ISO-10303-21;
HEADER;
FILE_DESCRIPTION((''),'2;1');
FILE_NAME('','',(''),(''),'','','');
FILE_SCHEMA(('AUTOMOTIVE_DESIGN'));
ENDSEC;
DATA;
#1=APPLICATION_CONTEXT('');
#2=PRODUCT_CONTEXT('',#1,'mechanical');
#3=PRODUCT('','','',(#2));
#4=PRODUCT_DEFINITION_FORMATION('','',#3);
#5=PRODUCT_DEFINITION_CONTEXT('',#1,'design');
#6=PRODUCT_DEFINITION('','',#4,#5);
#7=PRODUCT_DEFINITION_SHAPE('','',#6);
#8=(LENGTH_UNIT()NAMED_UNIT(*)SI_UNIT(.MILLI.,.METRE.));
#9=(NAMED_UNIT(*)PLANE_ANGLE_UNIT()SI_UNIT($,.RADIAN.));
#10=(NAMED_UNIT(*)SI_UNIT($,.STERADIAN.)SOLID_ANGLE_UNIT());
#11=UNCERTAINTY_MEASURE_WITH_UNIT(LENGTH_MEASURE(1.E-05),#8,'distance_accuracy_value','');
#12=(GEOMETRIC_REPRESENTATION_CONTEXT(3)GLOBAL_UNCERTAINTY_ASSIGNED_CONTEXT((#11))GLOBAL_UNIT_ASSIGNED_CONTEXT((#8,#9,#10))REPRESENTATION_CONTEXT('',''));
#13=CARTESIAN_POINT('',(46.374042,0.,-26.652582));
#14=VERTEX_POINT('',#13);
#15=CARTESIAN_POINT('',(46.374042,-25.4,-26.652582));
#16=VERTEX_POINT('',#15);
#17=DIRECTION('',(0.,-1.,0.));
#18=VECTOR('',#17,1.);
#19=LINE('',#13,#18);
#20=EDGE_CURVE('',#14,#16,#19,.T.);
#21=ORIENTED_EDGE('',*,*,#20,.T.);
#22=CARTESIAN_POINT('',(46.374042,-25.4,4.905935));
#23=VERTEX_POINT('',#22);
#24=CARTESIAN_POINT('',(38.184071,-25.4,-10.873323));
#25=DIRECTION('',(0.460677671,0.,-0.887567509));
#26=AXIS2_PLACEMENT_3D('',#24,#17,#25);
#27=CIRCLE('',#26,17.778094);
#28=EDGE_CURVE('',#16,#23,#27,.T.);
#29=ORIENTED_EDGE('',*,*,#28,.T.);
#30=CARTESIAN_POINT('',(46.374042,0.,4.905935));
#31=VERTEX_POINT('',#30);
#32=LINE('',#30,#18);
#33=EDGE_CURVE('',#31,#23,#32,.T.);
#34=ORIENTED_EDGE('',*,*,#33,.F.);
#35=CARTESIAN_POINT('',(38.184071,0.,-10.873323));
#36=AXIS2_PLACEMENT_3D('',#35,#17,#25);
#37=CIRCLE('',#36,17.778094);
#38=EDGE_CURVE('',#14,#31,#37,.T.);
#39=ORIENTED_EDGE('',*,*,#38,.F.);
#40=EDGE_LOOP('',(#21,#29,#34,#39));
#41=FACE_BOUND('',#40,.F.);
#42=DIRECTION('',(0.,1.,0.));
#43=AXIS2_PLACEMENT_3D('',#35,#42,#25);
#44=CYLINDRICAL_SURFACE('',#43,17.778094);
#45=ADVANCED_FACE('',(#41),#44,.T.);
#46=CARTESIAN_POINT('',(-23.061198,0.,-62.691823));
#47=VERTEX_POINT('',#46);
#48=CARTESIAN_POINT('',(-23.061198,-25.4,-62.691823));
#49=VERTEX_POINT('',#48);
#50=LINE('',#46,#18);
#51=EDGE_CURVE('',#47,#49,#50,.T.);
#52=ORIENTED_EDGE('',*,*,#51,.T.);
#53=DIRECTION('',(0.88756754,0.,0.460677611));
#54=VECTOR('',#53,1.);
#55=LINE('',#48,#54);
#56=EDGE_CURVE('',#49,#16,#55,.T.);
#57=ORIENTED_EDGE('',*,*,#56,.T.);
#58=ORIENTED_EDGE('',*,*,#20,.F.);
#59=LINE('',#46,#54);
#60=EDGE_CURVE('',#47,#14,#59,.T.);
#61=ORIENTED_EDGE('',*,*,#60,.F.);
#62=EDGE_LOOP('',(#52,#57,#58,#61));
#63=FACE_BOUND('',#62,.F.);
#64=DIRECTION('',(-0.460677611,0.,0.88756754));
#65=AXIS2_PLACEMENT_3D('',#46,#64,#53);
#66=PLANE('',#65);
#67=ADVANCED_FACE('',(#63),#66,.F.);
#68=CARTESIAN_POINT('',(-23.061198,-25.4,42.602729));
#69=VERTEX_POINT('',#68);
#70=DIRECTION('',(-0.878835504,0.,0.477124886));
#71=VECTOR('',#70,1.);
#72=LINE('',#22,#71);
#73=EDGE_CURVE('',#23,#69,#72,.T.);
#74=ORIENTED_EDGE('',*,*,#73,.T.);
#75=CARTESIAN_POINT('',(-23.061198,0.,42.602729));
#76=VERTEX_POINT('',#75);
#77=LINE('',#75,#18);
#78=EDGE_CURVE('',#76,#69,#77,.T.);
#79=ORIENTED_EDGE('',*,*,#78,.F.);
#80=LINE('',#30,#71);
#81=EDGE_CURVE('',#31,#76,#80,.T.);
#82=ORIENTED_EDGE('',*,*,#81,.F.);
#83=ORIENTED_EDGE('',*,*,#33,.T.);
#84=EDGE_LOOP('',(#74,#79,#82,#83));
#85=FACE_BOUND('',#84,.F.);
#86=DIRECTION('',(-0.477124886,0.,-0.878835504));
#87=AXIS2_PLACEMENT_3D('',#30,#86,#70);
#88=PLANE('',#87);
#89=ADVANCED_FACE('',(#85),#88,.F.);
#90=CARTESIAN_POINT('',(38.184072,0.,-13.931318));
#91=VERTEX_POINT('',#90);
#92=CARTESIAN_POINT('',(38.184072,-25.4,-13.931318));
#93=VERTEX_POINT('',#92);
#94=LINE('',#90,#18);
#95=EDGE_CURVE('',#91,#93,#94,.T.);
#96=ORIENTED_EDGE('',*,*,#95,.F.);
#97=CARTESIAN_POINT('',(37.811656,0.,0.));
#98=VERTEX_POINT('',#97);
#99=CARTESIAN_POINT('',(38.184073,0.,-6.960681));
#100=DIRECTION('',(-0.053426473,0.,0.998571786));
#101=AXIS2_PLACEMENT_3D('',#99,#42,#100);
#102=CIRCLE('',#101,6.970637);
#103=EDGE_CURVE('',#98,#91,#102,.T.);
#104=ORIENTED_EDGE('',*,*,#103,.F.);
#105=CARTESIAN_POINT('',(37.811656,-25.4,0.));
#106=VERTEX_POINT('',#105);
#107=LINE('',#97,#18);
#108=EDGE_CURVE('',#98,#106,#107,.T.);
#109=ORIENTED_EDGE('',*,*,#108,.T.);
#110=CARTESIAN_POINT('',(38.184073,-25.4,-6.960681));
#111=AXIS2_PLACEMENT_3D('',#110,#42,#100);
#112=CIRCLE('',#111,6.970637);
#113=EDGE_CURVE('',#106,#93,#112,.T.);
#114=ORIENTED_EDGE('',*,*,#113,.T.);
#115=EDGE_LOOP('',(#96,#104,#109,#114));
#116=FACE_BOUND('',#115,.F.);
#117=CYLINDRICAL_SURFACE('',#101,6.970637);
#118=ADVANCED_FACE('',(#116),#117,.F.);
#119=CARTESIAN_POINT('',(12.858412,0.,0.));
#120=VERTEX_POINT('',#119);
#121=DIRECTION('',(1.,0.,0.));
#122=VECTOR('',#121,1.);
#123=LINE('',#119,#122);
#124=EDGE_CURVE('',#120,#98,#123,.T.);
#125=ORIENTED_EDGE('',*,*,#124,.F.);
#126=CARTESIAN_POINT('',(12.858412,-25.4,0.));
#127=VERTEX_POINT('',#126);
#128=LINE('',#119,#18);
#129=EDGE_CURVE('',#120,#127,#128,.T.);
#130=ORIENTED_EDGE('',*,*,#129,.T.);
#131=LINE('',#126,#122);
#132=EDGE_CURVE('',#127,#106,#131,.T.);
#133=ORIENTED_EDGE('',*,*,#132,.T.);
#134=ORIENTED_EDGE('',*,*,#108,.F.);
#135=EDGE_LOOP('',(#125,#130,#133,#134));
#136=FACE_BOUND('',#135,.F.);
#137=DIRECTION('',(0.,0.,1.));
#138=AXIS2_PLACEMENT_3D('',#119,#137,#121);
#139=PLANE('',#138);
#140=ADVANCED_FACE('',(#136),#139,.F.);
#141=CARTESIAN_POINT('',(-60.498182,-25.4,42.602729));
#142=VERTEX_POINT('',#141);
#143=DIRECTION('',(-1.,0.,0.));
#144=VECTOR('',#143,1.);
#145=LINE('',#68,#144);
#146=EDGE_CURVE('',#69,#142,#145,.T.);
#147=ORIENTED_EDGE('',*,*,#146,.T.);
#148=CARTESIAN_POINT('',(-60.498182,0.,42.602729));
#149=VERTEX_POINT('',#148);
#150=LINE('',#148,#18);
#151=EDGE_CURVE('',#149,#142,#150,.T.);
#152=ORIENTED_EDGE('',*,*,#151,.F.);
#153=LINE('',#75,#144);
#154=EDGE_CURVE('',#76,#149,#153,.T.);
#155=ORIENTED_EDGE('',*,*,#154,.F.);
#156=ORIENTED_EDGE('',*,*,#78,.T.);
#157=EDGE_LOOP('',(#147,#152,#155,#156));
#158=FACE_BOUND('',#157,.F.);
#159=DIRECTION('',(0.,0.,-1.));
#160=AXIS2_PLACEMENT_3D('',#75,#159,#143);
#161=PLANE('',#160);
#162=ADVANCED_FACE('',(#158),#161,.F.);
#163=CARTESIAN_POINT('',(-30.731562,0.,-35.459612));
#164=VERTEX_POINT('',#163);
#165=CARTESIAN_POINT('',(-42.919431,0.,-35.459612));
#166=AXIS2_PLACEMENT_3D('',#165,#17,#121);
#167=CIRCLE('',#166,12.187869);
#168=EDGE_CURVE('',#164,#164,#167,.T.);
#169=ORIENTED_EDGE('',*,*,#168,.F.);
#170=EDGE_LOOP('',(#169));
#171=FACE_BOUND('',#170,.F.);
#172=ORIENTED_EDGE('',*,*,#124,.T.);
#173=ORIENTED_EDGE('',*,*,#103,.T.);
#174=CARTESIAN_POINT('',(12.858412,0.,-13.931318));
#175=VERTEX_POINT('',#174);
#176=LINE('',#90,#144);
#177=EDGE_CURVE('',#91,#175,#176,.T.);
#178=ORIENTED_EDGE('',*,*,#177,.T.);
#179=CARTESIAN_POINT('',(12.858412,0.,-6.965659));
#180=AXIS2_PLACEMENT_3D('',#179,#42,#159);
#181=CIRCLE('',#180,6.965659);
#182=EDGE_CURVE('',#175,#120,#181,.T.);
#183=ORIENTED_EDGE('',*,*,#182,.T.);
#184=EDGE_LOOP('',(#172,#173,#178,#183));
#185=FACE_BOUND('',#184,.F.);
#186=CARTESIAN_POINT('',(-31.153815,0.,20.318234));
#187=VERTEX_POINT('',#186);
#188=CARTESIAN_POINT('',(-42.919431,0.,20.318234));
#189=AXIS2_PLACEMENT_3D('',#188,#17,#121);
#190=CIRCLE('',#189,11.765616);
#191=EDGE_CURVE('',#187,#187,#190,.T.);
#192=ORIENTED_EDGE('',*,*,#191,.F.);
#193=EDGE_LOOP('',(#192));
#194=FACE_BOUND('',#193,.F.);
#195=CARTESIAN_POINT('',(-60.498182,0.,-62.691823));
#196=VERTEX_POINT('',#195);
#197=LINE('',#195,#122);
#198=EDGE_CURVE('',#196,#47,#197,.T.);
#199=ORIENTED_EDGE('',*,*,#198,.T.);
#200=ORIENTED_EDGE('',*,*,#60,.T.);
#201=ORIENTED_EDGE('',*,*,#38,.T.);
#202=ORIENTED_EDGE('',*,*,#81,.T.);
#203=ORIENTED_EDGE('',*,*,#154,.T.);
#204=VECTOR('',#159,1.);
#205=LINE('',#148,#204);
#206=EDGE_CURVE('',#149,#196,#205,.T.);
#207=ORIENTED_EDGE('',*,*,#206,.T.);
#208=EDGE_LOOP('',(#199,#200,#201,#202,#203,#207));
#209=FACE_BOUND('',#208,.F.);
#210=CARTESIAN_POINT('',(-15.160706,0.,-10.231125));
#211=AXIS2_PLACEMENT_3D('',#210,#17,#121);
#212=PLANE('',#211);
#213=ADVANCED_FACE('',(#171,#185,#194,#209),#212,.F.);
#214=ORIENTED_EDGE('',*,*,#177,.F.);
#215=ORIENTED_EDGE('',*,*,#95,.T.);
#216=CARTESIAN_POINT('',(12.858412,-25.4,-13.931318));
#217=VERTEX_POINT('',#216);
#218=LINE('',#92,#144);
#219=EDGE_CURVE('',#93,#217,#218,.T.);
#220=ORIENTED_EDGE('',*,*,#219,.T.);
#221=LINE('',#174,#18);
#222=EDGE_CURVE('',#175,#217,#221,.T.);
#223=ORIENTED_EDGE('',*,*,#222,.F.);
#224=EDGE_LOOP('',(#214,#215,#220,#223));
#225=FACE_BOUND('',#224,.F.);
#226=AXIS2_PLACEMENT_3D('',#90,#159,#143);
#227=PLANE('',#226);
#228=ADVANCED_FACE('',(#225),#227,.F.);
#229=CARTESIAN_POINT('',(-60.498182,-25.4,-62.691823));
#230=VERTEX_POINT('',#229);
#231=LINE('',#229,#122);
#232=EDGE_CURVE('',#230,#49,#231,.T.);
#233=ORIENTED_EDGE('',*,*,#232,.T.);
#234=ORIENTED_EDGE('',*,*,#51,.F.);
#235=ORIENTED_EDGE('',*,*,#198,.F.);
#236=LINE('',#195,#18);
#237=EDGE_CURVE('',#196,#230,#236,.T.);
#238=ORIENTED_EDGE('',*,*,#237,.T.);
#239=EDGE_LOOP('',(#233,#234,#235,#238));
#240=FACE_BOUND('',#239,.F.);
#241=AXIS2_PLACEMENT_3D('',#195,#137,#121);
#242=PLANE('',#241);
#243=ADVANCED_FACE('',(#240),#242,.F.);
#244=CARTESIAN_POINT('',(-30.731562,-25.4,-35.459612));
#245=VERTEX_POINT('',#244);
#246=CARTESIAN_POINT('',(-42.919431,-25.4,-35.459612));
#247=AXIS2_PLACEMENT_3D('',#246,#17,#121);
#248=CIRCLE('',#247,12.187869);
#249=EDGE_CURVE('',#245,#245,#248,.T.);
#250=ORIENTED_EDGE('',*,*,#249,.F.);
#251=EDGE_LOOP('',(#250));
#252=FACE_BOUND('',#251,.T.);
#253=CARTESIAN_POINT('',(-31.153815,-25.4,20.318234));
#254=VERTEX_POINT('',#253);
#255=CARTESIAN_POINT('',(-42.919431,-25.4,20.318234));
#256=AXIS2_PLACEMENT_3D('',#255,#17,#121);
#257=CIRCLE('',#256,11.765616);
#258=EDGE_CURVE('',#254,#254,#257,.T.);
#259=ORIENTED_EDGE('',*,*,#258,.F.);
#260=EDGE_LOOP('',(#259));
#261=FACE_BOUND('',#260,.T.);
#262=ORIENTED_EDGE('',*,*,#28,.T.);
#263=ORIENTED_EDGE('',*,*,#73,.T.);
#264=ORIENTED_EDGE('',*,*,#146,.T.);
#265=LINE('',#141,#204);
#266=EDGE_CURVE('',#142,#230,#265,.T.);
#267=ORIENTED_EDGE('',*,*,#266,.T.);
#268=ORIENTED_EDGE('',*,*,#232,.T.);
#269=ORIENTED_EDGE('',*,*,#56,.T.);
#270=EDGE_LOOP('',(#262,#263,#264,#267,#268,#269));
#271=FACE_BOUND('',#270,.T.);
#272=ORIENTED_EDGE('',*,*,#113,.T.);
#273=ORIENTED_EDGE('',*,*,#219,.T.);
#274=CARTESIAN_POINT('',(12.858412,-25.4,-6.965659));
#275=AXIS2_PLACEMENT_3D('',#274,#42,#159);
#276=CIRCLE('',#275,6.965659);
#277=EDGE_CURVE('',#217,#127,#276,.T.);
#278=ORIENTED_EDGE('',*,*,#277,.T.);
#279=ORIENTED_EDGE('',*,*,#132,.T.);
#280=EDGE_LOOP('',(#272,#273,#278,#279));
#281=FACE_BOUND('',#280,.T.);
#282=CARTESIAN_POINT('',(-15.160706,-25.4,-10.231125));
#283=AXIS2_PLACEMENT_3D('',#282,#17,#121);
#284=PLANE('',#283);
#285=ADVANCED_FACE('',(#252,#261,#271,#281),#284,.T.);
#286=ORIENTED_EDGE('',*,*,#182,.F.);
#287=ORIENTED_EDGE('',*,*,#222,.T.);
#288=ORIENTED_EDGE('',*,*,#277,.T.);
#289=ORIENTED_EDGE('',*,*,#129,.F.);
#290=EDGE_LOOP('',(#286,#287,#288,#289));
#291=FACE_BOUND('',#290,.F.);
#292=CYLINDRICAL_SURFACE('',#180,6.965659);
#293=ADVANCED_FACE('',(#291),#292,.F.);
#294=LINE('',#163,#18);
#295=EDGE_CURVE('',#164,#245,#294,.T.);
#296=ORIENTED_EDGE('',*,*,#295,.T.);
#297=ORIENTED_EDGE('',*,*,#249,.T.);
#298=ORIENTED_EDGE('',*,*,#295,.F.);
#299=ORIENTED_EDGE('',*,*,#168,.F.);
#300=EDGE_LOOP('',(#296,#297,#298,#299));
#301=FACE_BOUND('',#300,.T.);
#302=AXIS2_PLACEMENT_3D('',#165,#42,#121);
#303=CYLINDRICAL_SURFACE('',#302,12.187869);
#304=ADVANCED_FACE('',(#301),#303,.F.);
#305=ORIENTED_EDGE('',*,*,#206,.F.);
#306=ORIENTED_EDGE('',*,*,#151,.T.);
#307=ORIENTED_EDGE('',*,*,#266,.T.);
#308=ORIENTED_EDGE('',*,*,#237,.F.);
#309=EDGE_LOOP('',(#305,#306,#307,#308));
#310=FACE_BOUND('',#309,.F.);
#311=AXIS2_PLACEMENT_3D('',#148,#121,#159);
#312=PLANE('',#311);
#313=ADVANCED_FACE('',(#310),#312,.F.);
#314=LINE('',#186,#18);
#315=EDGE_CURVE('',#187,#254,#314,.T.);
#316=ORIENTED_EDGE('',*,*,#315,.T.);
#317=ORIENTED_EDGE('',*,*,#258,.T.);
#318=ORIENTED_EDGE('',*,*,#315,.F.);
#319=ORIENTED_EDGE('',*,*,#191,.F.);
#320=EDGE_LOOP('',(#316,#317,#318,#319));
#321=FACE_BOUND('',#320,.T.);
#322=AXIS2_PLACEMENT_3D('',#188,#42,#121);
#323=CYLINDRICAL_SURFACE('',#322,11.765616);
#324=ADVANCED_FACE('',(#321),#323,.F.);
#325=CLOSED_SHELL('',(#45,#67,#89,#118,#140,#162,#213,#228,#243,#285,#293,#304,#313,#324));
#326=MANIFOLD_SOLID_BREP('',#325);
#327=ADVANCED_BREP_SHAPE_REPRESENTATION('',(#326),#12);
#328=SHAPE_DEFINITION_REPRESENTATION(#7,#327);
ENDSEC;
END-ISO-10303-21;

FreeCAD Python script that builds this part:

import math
import FreeCAD as App
import Part
import Sketcher
Q = App.Units.Quantity

doc = App.newDocument("Part")
body = doc.addObject("PartDesign::Body", "Body")

# Sketch on XZ plane
sketch1 = doc.addObject("Sketcher::SketchObject", "Sketch")
body.addObject(sketch1)
sketch1.AttachmentSupport = (doc.XZ_Plane, [""])
sketch1.MapMode = "FlatFace"
sketch1.addGeometry([
    Part.LineSegment(App.Vector(-23, 43, 0), App.Vector(-60, 43, 0)),  # 0
    Part.LineSegment(App.Vector(-60, 43, 0), App.Vector(-60, -63, 0)),  # 1
    Part.LineSegment(App.Vector(-60, -63, 0), App.Vector(-23, -63, 0)),  # 2
    Part.LineSegment(App.Vector(-23, -63, 0), App.Vector(46, -27, 0)),  # 3
    Part.ArcOfCircle(Part.Circle(App.Vector(38, -11, 0), App.Vector(0, 0, 1), 18), math.radians(-63), math.radians(63)),  # 4
    Part.LineSegment(App.Vector(46, 5, 0), App.Vector(-23, 43, 0)),  # 5
    Part.Circle(App.Vector(-43, -35, 0), App.Vector(0, 0, 1), 12),  # 6
    Part.Circle(App.Vector(-43, 20, 0), App.Vector(0, 0, 1), 12),  # 7
    Part.LineSegment(App.Vector(38, -14, 0), App.Vector(13, -14, 0)),  # 8
    Part.ArcOfCircle(Part.Circle(App.Vector(13, -7, 0), App.Vector(0, 0, 1), 7), math.radians(90), math.radians(270)),  # 9
    Part.LineSegment(App.Vector(13, 0, 0), App.Vector(38, 0, 0)),  # 10
    Part.ArcOfCircle(Part.Circle(App.Vector(38, -7, 0), App.Vector(0, 0, 1), 7), math.radians(-90), math.radians(93)),  # 11
], False)
sketch1.addConstraint([
    Sketcher.Constraint("Coincident", 0, 2, 1, 1),
    Sketcher.Constraint("Coincident", 1, 2, 2, 1),
    Sketcher.Constraint("Coincident", 2, 2, 3, 1),
    Sketcher.Constraint("Tangent", 3, 2, 4, 1),
    Sketcher.Constraint("Coincident", 4, 2, 5, 1),
    Sketcher.Constraint("Coincident", 5, 2, 0, 1),
    Sketcher.Constraint("Tangent", 8, 2, 9, 2),
    Sketcher.Constraint("Tangent", 9, 1, 10, 1),
    Sketcher.Constraint("Coincident", 10, 2, 11, 2),
    Sketcher.Constraint("Tangent", 11, 1, 8, 1),
    Sketcher.Constraint("Horizontal", 0),
    Sketcher.Constraint("Vertical", 1),
    Sketcher.Constraint("Horizontal", 2),
    Sketcher.Constraint("Horizontal", 8),
    Sketcher.Constraint("Horizontal", 10),
    Sketcher.Constraint("PointOnObject", 9, 1, -1),
    Sketcher.Constraint("Vertical", 6, 3, 7, 3),
    Sketcher.Constraint("Vertical", 4, 3, 11, 3),
    Sketcher.Constraint("Vertical", 3, 2, 4, 2),
    Sketcher.Constraint("Vertical", 2, 2, 5, 2),
    Sketcher.Constraint("Diameter", 7, 23.531232),
    Sketcher.Constraint("Radius", 9, 6.965659),
    Sketcher.Constraint("Diameter", 6, 24.375738),
    Sketcher.Constraint("Radius", 4, 17.778094),
    Sketcher.Constraint("Radius", 11, 6.970637),
    Sketcher.Constraint("DistanceX", 8, 2, 8, 1, 25.32566),
    Sketcher.Constraint("DistanceY", 1, 2, 1, 1, 105.294552),
    Sketcher.Constraint("DistanceX", 2, 2, -1, 1, 23.061198),
    Sketcher.Constraint("DistanceY", 1, 2, 4, 3, 51.8185),
    Sketcher.Constraint("DistanceY", 3, 2, 11, 3, 19.691901),
    Sketcher.Constraint("DistanceY", 4, 2, 7, 3, 15.412299),
    Sketcher.Constraint("DistanceX", 0, 2, 0, 1, 37.436984),
    Sketcher.Constraint("DistanceX", -1, 1, 4, 3, 38.184071),
    Sketcher.Constraint("DistanceX", 6, 3, -1, 1, 42.919431),
    Sketcher.Constraint("DistanceY", 6, 3, 4, 3, 24.586289),
])
pad1 = doc.addObject("PartDesign::Pad", "Pad")
body.addObject(pad1)
pad1.Profile = sketch1
pad1.Length = Q("1 in")

doc.recompute()
